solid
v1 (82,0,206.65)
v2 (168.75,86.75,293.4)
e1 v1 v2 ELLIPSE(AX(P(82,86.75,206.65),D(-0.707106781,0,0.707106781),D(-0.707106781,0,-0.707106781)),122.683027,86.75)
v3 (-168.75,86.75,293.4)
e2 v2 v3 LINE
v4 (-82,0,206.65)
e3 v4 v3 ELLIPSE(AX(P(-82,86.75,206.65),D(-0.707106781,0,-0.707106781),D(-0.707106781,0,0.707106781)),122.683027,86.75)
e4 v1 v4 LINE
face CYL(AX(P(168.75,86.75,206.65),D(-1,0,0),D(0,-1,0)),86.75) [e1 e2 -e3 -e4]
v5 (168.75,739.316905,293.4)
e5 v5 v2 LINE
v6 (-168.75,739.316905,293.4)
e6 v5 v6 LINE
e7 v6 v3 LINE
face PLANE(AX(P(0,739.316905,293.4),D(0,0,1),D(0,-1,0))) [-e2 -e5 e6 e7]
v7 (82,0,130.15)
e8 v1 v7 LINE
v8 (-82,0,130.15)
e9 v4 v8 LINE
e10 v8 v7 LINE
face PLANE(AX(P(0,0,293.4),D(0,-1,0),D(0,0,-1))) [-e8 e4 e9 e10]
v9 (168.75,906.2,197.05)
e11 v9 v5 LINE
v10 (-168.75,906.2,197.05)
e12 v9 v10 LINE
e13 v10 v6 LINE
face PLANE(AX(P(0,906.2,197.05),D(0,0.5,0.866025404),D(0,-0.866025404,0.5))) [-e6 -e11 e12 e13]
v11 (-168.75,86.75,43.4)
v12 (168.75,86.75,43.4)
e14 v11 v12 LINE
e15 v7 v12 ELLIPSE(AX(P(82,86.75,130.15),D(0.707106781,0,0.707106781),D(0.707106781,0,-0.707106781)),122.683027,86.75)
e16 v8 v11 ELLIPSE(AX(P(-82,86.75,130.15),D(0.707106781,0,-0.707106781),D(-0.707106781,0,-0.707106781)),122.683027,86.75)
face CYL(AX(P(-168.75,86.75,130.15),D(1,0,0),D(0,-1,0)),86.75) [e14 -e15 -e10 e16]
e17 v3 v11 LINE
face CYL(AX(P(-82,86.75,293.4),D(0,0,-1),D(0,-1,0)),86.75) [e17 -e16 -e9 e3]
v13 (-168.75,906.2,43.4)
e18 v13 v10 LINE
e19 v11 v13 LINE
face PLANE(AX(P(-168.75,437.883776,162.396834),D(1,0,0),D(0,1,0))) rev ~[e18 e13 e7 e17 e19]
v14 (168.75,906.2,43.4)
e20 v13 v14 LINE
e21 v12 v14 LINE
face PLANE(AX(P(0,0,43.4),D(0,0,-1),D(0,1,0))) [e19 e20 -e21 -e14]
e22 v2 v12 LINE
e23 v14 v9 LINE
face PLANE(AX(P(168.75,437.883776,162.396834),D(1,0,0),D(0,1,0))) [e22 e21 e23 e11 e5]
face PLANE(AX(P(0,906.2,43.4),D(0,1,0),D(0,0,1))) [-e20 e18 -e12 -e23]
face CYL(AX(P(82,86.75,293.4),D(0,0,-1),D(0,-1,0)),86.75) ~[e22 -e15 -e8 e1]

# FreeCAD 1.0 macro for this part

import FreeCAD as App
import Part
import Sketcher
from FreeCAD import Vector
Q = App.Units.Quantity


def edges_at(feature, points):
    """Names of the edges that pass closest to the given points."""
    edges = feature.Shape.Edges
    near = lambda p: min(range(len(edges)), key=lambda i: edges[i].distToShape(Part.Vertex(*p))[0])
    return sorted({f"Edge{near(p) + 1}" for p in points})

doc = App.newDocument("Part")
body = doc.addObject("PartDesign::Body", "Body")

sketch1 = body.newObject("Sketcher::SketchObject", "Sketch")
sketch1.AttachmentSupport = (doc.getObject("YZ_Plane"), [""])
sketch1.MapMode = "FlatFace"
sketch1.addGeometry([
    Part.LineSegment(Vector(0, 293, 0), Vector(0, 43, 0)),
    Part.LineSegment(Vector(0, 43, 0), Vector(906, 43, 0)),
    Part.LineSegment(Vector(906, 43, 0), Vector(906, 197, 0)),
    Part.LineSegment(Vector(906, 197, 0), Vector(739, 293, 0)),
    Part.LineSegment(Vector(739, 293, 0), Vector(0, 293, 0)),
], False)
sketch1.addConstraint([
    Sketcher.Constraint("Coincident", 0, 2, 1, 1),
    Sketcher.Constraint("Coincident", 1, 2, 2, 1),
    Sketcher.Constraint("Coincident", 2, 2, 3, 1),
    Sketcher.Constraint("Coincident", 3, 2, 4, 1),
    Sketcher.Constraint("Coincident", 4, 2, 0, 1),
    Sketcher.Constraint("Vertical", 0),
    Sketcher.Constraint("Horizontal", 1),
    Sketcher.Constraint("Vertical", 2),
    Sketcher.Constraint("Horizontal", 4),
    Sketcher.Constraint("PointOnObject", 0, 2, -2),
    Sketcher.Constraint("DistanceY", 0, 2, 0, 1, Q("250 mm")),
    Sketcher.Constraint("Angle", 3, Q("150 deg")),
    Sketcher.Constraint("DistanceX", 1, 1, 1, 2, Q("906.2 mm")),
    Sketcher.Constraint("Distance", 3, Q("192.7 mm")),
    Sketcher.Constraint("DistanceY", -1, 1, 0, 2, Q("43.4 mm")),
])
pad1 = body.newObject("PartDesign::Pad", "Pad")
pad1.Profile = sketch1
pad1.Length = 337.5
pad1.Midplane = True
doc.recompute()

fillet = body.newObject("PartDesign::Fillet", "Fillet")
fillet.Base = (pad1, edges_at(pad1, [
    (0, 0, 293.4),
    (168.75, 0, 168.4),
    (-168.75, 0, 168.4),
    (0, 0, 43.4),
]))
fillet.Radius = 86.75

doc.recompute()
